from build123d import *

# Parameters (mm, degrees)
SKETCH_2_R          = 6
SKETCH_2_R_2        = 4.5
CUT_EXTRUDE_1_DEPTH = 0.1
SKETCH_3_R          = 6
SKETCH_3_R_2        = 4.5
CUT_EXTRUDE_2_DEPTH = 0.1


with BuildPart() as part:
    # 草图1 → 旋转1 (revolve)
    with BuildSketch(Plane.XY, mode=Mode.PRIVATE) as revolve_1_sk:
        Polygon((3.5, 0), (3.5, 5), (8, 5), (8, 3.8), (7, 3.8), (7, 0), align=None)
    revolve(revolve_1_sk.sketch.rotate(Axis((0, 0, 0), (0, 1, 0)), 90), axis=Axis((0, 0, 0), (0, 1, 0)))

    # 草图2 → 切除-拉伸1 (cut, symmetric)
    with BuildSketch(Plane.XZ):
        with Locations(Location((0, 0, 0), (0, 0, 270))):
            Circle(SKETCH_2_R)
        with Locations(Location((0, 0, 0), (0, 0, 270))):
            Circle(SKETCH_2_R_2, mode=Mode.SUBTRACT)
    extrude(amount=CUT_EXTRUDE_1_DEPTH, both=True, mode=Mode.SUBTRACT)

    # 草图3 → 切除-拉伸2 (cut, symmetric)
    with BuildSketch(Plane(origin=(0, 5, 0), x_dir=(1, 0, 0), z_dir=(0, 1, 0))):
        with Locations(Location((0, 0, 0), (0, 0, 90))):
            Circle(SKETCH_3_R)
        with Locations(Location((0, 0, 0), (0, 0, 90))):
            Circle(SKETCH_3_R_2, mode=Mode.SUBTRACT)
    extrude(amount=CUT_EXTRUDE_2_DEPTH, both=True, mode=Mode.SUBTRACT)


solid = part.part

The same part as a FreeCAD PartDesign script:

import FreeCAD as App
import Part
import Sketcher

V = App.Vector
Q = App.Units.Quantity

doc = App.newDocument("Part")
body = doc.addObject("PartDesign::Body", "Body")

sketch1 = body.newObject("Sketcher::SketchObject", "Sketch")
sketch1.AttachmentSupport = (doc.getObject("XY_Plane"), [""])
sketch1.MapMode = "FlatFace"
sketch1.addGeometry([
    Part.LineSegment(V(3.5, 5, 0), V(3.5, 0, 0)),
    Part.LineSegment(V(3.5, 0, 0), V(7, 0, 0)),
    Part.LineSegment(V(7, 0, 0), V(7, 3.8, 0)),
    Part.LineSegment(V(7, 3.8, 0), V(8, 3.8, 0)),
    Part.LineSegment(V(8, 3.8, 0), V(8, 5, 0)),
    Part.LineSegment(V(8, 5, 0), V(3.5, 5, 0)),
], False)
sketch1.addConstraint([
    Sketcher.Constraint("Coincident", 0, 2, 1, 1),
    Sketcher.Constraint("Coincident", 1, 2, 2, 1),
    Sketcher.Constraint("Coincident", 2, 2, 3, 1),
    Sketcher.Constraint("Coincident", 3, 2, 4, 1),
    Sketcher.Constraint("Coincident", 4, 2, 5, 1),
    Sketcher.Constraint("Coincident", 5, 2, 0, 1),
    Sketcher.Constraint("Vertical", 0),
    Sketcher.Constraint("Horizontal", 1),
    Sketcher.Constraint("Vertical", 2),
    Sketcher.Constraint("Horizontal", 3),
    Sketcher.Constraint("Vertical", 4),
    Sketcher.Constraint("Horizontal", 5),
    Sketcher.Constraint("PointOnObject", 0, 2, -1),
    Sketcher.Constraint("DistanceX", 3, 1, 3, 2, Q("1 mm")),
    Sketcher.Constraint("DistanceY", 0, 2, 0, 1, Q("5 mm")),
    Sketcher.Constraint("DistanceX", 1, 1, 1, 2, Q("3.5 mm")),
    Sketcher.Constraint("DistanceY", 2, 1, 2, 2, Q("3.8 mm")),
    Sketcher.Constraint("DistanceX", -1, 1, 1, 2, Q("7 mm")),
])
revolution = body.newObject("PartDesign::Revolution", "Revolution")
revolution.Profile = sketch1
revolution.ReferenceAxis = (sketch1, ["V_Axis"])
revolution.Angle = 360

sketch2 = body.newObject("Sketcher::SketchObject", "Sketch001")
sketch2.AttachmentSupport = (doc.getObject("XZ_Plane"), [""])
sketch2.MapMode = "FlatFace"
sketch2.addGeometry([
    Part.Circle(V(0, 0, 0), V(0, 0, 1), 6),
    Part.Circle(V(0, 0, 0), V(0, 0, 1), 4.5),
], False)
sketch2.addConstraint([
    Sketcher.Constraint("Coincident", 0, 3, -1, 1),
    Sketcher.Constraint("Coincident", 1, 3, -1, 1),
    Sketcher.Constraint("Diameter", 0, Q("12 mm")),
    Sketcher.Constraint("Diameter", 1, Q("9 mm")),
])
pocket1 = body.newObject("PartDesign::Pocket", "Pocket")
pocket1.Profile = sketch2
pocket1.Length = 0.2
pocket1.Midplane = True

sketch3 = body.newObject("Sketcher::SketchObject", "Sketch002")
sketch3.AttachmentSupport = (doc.getObject("XZ_Plane"), [""])
sketch3.MapMode = "FlatFace"
sketch3.AttachmentOffset = App.Placement(V(0, 0, -5), App.Rotation())
sketch3.addGeometry([
    Part.Circle(V(0, 0, 0), V(0, 0, 1), 6),
    Part.Circle(V(0, 0, 0), V(0, 0, 1), 4.5),
], False)
sketch3.addConstraint([
    Sketcher.Constraint("Coincident", 0, 3, -1, 1),
    Sketcher.Constraint("Coincident", 1, 3, -1, 1),
    Sketcher.Constraint("Diameter", 0, Q("12 mm")),
    Sketcher.Constraint("Diameter", 1, Q("9 mm")),
])
pocket2 = body.newObject("PartDesign::Pocket", "Pocket001")
pocket2.Profile = sketch3
pocket2.Length = 0.2
pocket2.Midplane = True

doc.recompute()
